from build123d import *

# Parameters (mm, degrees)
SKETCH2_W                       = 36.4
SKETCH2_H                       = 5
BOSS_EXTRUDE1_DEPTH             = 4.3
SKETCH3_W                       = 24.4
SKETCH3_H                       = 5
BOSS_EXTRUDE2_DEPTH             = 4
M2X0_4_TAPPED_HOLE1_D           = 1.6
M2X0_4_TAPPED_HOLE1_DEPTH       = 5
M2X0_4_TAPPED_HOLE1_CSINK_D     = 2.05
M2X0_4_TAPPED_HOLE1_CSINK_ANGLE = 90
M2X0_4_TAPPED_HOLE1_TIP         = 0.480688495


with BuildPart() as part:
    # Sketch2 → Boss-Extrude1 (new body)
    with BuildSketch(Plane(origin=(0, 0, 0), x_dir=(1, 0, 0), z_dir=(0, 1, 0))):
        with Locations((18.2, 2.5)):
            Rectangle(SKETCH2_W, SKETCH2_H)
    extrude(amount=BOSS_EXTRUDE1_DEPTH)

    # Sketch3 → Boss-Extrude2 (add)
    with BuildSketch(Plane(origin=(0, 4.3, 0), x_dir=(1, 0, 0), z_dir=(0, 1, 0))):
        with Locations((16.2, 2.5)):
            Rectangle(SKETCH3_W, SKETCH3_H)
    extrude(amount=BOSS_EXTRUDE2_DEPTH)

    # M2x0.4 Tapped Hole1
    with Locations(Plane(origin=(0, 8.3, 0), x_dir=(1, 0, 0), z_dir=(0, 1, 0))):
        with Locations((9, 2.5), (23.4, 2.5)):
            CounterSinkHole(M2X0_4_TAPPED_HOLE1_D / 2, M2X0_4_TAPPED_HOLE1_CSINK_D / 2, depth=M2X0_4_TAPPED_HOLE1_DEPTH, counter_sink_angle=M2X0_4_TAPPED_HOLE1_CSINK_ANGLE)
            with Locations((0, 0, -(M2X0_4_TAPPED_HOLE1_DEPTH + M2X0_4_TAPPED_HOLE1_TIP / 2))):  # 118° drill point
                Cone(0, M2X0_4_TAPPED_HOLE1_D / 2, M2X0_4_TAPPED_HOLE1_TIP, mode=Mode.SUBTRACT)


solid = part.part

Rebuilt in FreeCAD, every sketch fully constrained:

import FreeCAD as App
import Part
import Sketcher
from FreeCAD import Vector
Q = App.Units.Quantity


def add_polygon(sketch, points):
    """Adds a closed chain of lines whose ends are joined by coincident constraints."""
    first, n = sketch.GeometryCount, len(points)
    for a, b in zip(points, points[1:] + points[:1]):
        sketch.addGeometry(Part.LineSegment(App.Vector(*a, 0), App.Vector(*b, 0)), False)
    for i in range(n):
        sketch.addConstraint(Sketcher.Constraint("Coincident", first + i, 2, first + (i + 1) % n, 1))

doc = App.newDocument("Part")
params = doc.addObject("Spreadsheet::Sheet", "Params")
for row, (alias, value) in enumerate([
    ("sketch1_height", "5 mm"),
    ("sketch1_width", "36.4 mm"),
    ("pad1_length", "4.3 mm"),
    ("sketch2_height", "5 mm"),
    ("sketch2_width", "24.4 mm"),
    ("pad2_length", "4 mm"),
    ("sketch3_diameter", "1.6 mm"),
    ("hole_diameter", "1.6 mm"),
    ("hole_depth", "5 mm"),
    ("hole_csink_diameter", "2.05 mm"),
], start=1):
    params.set(f"A{row}", alias)
    params.set(f"B{row}", "=" + value)
    params.setAlias(f"B{row}", alias)

body = doc.addObject("PartDesign::Body", "Body")

sketch1 = body.newObject("Sketcher::SketchObject", "Sketch")
sketch1.AttachmentSupport = (doc.getObject("XZ_Plane"), [""])
sketch1.MapMode = "FlatFace"
add_polygon(sketch1, [(0, -5), (0, 0), (36.4, 0), (36.4, -5)])
sketch1.addConstraint(Sketcher.Constraint("Vertical", 0))
sketch1.addConstraint(Sketcher.Constraint("Horizontal", 1))
sketch1.addConstraint(Sketcher.Constraint("Vertical", 2))
sketch1.addConstraint(Sketcher.Constraint("Horizontal", 3))
sketch1.addConstraint(Sketcher.Constraint("Coincident", 0, 2, -1, 1))
sketch1.addConstraint(Sketcher.Constraint("DistanceY", 0, 1, 0, 2, Q("5 mm")))
sketch1.addConstraint(Sketcher.Constraint("DistanceX", 1, 1, 1, 2, Q("36.4 mm")))
sketch1.setExpression("Constraints[9]", "Params.sketch1_height")
sketch1.setExpression("Constraints[10]", "Params.sketch1_width")
pad1 = body.newObject("PartDesign::Pad", "Pad")
pad1.Profile = sketch1
pad1.setExpression("Length", "Params.pad1_length")
pad1.Reversed = True

sketch2 = body.newObject("Sketcher::SketchObject", "Sketch001")
sketch2.AttachmentSupport = (doc.getObject("XZ_Plane"), [""])
sketch2.MapMode = "FlatFace"
sketch2.AttachmentOffset = App.Placement(Vector(0, 0, -4.3), App.Rotation())
add_polygon(sketch2, [(4, -5), (4, 0), (28.4, 0), (28.4, -5)])
sketch2.addConstraint(Sketcher.Constraint("Vertical", 0))
sketch2.addConstraint(Sketcher.Constraint("Horizontal", 1))
sketch2.addConstraint(Sketcher.Constraint("Vertical", 2))
sketch2.addConstraint(Sketcher.Constraint("Horizontal", 3))
sketch2.addConstraint(Sketcher.Constraint("PointOnObject", 0, 2, -1))
sketch2.addConstraint(Sketcher.Constraint("DistanceY", 0, 1, 0, 2, Q("5 mm")))
sketch2.addConstraint(Sketcher.Constraint("DistanceX", 1, 1, 1, 2, Q("24.4 mm")))
sketch2.addConstraint(Sketcher.Constraint("DistanceX", -1, 1, 0, 2, Q("4 mm")))
sketch2.setExpression("Constraints[9]", "Params.sketch2_height")
sketch2.setExpression("Constraints[10]", "Params.sketch2_width")
pad2 = body.newObject("PartDesign::Pad", "Pad001")
pad2.Profile = sketch2
pad2.setExpression("Length", "Params.pad2_length")
pad2.Reversed = True

sketch3 = body.newObject("Sketcher::SketchObject", "Sketch002")
sketch3.AttachmentSupport = (doc.getObject("XZ_Plane"), [""])
sketch3.MapMode = "FlatFace"
sketch3.AttachmentOffset = App.Placement(Vector(0, 0, -8.3), App.Rotation())
sketch3.addGeometry(Part.Circle(Vector(9, -2.5, 0), Vector(0, 0, 1), 0.8), False)
sketch3.addGeometry(Part.Circle(Vector(23.4, -2.5, 0), Vector(0, 0, 1), 0.8), False)
sketch3.addConstraint(Sketcher.Constraint("Equal", 0, 1))
sketch3.addConstraint(Sketcher.Constraint("Horizontal", 0, 3, 1, 3))
sketch3.addConstraint(Sketcher.Constraint("Diameter", 0, Q("1.6 mm")))
sketch3.addConstraint(Sketcher.Constraint("DistanceX", -1, 1, 0, 3, Q("9 mm")))
sketch3.addConstraint(Sketcher.Constraint("DistanceY", 0, 3, -1, 1, Q("2.5 mm")))
sketch3.addConstraint(Sketcher.Constraint("DistanceX", -1, 1, 1, 3, Q("23.4 mm")))
sketch3.setExpression("Constraints[2]", "Params.sketch3_diameter")
doc.recompute()
hole = body.newObject("PartDesign::Hole", "Hole")
hole.Profile = sketch3
hole.ThreadType = "None"
hole.setExpression("Diameter", "Params.hole_diameter")
hole.DepthType = "Dimension"
hole.setExpression("Depth", "Params.hole_depth")
hole.DrillPoint = "Angled"
hole.DrillPointAngle = 118
hole.HoleCutType = "Countersink"
hole.setExpression("HoleCutDiameter", "Params.hole_csink_diameter")
hole.HoleCutCountersinkAngle = 90
hole.Reversed = True

doc.recompute()
